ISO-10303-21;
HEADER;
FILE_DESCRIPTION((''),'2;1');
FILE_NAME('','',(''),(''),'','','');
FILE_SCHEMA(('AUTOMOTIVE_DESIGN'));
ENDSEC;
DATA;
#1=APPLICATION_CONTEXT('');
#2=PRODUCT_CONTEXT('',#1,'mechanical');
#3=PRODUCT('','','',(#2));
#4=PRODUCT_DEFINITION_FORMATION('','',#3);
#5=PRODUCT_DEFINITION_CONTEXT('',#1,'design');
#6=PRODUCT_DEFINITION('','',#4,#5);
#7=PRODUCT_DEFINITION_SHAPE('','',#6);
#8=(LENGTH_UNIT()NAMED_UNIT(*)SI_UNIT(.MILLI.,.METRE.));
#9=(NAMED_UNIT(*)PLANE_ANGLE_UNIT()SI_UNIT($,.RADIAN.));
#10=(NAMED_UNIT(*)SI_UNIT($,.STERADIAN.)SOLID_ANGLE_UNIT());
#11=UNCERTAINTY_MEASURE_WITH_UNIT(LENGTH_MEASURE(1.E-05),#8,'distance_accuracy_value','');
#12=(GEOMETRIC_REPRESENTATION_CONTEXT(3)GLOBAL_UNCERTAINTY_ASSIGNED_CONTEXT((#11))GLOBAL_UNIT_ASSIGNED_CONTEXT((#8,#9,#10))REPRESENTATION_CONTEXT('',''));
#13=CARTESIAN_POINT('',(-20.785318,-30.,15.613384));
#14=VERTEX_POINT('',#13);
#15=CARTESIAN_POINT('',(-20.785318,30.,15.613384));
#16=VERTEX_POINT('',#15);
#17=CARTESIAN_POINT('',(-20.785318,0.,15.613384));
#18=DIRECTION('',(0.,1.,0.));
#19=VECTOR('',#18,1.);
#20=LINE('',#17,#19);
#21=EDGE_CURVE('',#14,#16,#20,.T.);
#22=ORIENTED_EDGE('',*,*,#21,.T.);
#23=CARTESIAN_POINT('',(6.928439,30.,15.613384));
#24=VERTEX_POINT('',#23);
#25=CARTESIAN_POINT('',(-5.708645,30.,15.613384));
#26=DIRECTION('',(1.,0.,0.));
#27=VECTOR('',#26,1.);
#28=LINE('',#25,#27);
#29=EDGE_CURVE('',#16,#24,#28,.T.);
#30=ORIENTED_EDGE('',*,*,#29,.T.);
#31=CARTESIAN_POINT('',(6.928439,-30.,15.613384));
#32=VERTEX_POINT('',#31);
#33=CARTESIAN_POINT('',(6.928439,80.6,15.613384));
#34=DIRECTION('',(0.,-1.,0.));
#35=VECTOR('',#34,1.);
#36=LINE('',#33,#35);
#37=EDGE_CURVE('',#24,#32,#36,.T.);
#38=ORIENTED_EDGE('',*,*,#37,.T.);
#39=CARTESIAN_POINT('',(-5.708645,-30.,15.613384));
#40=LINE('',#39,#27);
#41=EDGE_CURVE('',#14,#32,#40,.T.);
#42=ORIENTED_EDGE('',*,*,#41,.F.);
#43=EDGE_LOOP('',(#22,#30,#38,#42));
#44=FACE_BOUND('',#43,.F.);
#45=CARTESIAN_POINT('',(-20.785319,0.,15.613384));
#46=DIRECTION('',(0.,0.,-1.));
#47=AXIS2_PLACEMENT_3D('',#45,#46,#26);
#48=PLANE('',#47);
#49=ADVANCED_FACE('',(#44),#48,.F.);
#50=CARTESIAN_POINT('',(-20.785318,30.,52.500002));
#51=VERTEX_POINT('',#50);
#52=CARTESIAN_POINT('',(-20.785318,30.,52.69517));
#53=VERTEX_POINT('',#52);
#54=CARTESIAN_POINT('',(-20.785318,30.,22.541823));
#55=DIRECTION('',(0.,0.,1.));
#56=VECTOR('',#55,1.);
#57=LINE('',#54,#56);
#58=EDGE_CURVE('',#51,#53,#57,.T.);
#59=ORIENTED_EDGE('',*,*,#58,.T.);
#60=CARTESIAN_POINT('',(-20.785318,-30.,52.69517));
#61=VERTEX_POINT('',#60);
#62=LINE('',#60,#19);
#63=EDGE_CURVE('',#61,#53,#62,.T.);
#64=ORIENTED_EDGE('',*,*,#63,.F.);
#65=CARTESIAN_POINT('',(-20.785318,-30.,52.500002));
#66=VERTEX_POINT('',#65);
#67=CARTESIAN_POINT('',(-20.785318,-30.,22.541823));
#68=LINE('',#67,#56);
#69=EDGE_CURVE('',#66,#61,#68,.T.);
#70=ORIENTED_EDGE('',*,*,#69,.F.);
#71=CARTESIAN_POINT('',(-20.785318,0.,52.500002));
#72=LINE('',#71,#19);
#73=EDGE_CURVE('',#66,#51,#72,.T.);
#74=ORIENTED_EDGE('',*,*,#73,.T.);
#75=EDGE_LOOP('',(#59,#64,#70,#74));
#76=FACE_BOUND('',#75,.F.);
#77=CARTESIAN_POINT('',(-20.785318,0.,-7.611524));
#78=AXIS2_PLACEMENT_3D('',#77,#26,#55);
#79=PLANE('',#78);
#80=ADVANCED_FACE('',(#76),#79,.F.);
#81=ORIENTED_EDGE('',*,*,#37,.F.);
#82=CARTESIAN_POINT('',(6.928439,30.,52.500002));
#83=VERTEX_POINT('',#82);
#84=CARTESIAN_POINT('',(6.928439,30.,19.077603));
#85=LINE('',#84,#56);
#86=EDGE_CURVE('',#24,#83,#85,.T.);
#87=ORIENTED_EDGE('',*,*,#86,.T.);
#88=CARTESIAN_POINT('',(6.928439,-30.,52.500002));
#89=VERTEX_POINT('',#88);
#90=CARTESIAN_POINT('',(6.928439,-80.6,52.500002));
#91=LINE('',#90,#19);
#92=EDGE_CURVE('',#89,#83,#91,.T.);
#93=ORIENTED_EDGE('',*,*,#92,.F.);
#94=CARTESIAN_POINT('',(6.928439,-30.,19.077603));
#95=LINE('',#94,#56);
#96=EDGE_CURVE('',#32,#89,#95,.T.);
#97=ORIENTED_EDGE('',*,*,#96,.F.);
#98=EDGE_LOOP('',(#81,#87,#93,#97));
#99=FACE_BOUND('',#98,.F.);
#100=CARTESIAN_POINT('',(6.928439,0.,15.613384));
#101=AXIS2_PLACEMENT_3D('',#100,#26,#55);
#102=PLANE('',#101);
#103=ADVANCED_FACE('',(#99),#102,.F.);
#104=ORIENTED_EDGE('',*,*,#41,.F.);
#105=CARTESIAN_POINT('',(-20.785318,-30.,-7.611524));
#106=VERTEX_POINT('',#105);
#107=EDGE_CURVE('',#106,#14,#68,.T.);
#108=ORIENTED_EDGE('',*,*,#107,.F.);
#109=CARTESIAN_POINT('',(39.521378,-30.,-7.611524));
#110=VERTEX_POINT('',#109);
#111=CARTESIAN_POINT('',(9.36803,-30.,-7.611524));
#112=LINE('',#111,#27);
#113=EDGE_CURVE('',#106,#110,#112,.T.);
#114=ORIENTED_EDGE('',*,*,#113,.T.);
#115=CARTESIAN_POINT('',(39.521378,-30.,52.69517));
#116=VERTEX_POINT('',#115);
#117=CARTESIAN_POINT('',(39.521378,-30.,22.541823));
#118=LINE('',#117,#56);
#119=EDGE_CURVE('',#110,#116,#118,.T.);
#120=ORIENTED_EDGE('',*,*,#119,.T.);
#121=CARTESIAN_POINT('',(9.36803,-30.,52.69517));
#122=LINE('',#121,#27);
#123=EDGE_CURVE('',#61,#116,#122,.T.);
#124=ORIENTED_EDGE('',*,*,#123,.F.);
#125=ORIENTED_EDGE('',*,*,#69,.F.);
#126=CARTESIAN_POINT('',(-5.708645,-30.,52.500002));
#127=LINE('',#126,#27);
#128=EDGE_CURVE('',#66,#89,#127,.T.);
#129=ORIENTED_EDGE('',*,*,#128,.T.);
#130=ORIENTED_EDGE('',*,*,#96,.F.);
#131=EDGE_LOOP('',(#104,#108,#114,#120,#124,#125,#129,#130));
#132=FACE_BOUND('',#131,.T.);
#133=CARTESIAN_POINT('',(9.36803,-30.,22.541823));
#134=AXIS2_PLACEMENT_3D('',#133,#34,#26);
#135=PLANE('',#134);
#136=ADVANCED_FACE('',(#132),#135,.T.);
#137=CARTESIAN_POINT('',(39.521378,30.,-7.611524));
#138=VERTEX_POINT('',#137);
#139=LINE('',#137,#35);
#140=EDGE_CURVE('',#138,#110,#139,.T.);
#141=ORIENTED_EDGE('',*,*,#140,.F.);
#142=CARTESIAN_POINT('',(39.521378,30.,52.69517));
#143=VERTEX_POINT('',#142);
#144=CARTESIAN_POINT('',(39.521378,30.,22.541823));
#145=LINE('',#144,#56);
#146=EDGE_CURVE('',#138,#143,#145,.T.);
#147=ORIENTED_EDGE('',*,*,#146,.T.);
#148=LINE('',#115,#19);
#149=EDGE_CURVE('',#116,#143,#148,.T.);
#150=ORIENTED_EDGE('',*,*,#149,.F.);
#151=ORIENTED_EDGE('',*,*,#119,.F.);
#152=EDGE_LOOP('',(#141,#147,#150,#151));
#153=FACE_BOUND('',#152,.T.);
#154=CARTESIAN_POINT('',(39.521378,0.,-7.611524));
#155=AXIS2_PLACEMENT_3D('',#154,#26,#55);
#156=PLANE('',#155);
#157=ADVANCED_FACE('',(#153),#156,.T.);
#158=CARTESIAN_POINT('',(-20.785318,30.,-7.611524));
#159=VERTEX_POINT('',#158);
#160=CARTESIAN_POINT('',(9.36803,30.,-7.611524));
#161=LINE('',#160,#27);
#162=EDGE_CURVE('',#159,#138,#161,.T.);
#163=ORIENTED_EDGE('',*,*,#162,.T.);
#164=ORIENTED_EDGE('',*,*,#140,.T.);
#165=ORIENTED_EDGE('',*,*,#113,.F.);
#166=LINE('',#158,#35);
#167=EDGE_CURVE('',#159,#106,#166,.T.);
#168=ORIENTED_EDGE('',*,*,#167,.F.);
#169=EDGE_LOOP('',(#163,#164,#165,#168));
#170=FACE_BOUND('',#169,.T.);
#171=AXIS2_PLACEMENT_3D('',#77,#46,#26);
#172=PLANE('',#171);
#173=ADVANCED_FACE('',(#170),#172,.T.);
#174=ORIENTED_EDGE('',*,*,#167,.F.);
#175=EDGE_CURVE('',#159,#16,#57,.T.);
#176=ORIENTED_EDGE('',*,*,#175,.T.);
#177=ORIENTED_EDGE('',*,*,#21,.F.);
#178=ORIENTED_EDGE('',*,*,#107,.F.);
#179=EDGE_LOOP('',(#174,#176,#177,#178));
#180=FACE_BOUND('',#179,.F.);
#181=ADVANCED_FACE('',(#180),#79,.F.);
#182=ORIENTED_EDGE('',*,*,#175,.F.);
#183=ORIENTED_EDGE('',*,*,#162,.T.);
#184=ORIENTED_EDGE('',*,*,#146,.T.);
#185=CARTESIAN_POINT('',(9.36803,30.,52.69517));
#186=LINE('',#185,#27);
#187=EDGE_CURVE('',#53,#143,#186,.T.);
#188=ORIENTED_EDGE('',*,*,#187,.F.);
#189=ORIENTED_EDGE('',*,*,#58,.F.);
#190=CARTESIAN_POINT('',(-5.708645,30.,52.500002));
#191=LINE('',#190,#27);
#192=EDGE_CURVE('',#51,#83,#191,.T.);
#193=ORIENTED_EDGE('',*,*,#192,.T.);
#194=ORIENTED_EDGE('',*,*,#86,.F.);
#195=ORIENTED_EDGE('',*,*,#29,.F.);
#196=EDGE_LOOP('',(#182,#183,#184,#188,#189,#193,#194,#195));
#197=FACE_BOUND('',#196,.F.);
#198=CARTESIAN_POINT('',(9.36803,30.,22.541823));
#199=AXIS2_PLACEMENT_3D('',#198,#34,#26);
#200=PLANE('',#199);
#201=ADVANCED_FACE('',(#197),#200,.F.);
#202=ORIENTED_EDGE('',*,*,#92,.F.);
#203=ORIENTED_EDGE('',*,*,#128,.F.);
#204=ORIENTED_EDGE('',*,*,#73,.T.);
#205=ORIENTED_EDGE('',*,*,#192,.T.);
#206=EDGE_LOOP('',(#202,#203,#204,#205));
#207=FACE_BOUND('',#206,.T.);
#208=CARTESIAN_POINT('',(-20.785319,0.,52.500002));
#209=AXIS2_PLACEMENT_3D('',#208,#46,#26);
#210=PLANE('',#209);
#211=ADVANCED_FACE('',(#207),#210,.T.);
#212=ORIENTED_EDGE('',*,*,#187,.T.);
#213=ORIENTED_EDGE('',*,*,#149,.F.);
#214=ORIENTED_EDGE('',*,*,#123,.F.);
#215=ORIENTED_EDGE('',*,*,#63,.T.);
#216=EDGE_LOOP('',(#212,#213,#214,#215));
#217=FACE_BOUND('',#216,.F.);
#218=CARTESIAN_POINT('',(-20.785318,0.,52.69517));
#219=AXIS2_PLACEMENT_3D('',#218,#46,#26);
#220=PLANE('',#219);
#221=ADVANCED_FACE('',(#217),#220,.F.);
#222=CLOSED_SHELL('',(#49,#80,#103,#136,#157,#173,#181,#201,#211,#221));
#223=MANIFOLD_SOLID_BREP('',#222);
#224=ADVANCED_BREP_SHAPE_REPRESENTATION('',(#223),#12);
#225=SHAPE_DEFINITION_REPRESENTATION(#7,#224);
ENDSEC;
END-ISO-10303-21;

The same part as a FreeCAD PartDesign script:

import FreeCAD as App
import Part
import Sketcher
from FreeCAD import Vector
Q = App.Units.Quantity

doc = App.newDocument("Part")
params = doc.addObject("Spreadsheet::Sheet", "Params")
for row, (alias, value) in enumerate([
    ("pad1_length", "60 mm"),
    ("pocket1_length", "161.2 mm"),
], start=1):
    params.set(f"A{row}", alias)
    params.set(f"B{row}", "=" + value)
    params.setAlias(f"B{row}", alias)

body = doc.addObject("PartDesign::Body", "Body")

sketch1 = doc.addObject("Sketcher::SketchObject", "Sketch")
body.addObject(sketch1)
sketch1.AttachmentSupport = (doc.XZ_Plane, [""])
sketch1.MapMode = "FlatFace"
sketch1.addGeometry([
    Part.LineSegment(Vector(-21, 53, 0), Vector(-21, -8, 0)),
    Part.LineSegment(Vector(-21, -8, 0), Vector(40, -8, 0)),
    Part.LineSegment(Vector(40, -8, 0), Vector(40, 53, 0)),
    Part.LineSegment(Vector(40, 53, 0), Vector(-21, 53, 0)),
], False)
sketch1.addConstraint([
    Sketcher.Constraint("Coincident", 0, 2, 1, 1),
    Sketcher.Constraint("Coincident", 1, 2, 2, 1),
    Sketcher.Constraint("Coincident", 2, 2, 3, 1),
    Sketcher.Constraint("Coincident", 3, 2, 0, 1),
    Sketcher.Constraint("Vertical", 0),
    Sketcher.Constraint("Horizontal", 1),
    Sketcher.Constraint("Vertical", 2),
    Sketcher.Constraint("Horizontal", 3),
    Sketcher.Constraint("DistanceX", 1, 1, 1, 2, Q("60.306697 mm")),
    Sketcher.Constraint("DistanceY", 0, 2, 0, 1, Q("60.306694 mm")),
    Sketcher.Constraint("DistanceX", 0, 2, -1, 1, Q("20.785318 mm")),
    Sketcher.Constraint("DistanceY", -1, 1, 2, 2, Q("52.69517 mm")),
])
pad1 = doc.addObject("PartDesign::Pad", "Pad")
body.addObject(pad1)
pad1.Profile = sketch1
pad1.setExpression("Length", "Params.pad1_length")
pad1.Midplane = True

sketch2 = doc.addObject("Sketcher::SketchObject", "Sketch001")
body.addObject(sketch2)
sketch2.AttachmentSupport = (doc.XZ_Plane, [""])
sketch2.MapMode = "FlatFace"
sketch2.addGeometry([
    Part.LineSegment(Vector(-21, 53, 0), Vector(-21, 16, 0)),
    Part.LineSegment(Vector(-21, 16, 0), Vector(7, 16, 0)),
    Part.LineSegment(Vector(7, 16, 0), Vector(7, 53, 0)),
    Part.LineSegment(Vector(7, 53, 0), Vector(-21, 53, 0)),
], False)
sketch2.addConstraint([
    Sketcher.Constraint("Coincident", 0, 2, 1, 1),
    Sketcher.Constraint("Coincident", 1, 2, 2, 1),
    Sketcher.Constraint("Coincident", 2, 2, 3, 1),
    Sketcher.Constraint("Coincident", 3, 2, 0, 1),
    Sketcher.Constraint("Vertical", 0),
    Sketcher.Constraint("Horizontal", 1),
    Sketcher.Constraint("Vertical", 2),
    Sketcher.Constraint("Horizontal", 3),
    Sketcher.Constraint("DistanceX", 1, 1, 1, 2, Q("27.713758 mm")),
    Sketcher.Constraint("DistanceY", 0, 2, 0, 1, Q("36.886618 mm")),
    Sketcher.Constraint("DistanceX", 0, 2, -1, 1, Q("20.785319 mm")),
    Sketcher.Constraint("DistanceY", -1, 1, 0, 2, Q("15.613384 mm")),
])
pocket1 = doc.addObject("PartDesign::Pocket", "Pocket")
body.addObject(pocket1)
pocket1.Profile = sketch2
pocket1.setExpression("Length", "Params.pocket1_length")
pocket1.Midplane = True

doc.recompute()
